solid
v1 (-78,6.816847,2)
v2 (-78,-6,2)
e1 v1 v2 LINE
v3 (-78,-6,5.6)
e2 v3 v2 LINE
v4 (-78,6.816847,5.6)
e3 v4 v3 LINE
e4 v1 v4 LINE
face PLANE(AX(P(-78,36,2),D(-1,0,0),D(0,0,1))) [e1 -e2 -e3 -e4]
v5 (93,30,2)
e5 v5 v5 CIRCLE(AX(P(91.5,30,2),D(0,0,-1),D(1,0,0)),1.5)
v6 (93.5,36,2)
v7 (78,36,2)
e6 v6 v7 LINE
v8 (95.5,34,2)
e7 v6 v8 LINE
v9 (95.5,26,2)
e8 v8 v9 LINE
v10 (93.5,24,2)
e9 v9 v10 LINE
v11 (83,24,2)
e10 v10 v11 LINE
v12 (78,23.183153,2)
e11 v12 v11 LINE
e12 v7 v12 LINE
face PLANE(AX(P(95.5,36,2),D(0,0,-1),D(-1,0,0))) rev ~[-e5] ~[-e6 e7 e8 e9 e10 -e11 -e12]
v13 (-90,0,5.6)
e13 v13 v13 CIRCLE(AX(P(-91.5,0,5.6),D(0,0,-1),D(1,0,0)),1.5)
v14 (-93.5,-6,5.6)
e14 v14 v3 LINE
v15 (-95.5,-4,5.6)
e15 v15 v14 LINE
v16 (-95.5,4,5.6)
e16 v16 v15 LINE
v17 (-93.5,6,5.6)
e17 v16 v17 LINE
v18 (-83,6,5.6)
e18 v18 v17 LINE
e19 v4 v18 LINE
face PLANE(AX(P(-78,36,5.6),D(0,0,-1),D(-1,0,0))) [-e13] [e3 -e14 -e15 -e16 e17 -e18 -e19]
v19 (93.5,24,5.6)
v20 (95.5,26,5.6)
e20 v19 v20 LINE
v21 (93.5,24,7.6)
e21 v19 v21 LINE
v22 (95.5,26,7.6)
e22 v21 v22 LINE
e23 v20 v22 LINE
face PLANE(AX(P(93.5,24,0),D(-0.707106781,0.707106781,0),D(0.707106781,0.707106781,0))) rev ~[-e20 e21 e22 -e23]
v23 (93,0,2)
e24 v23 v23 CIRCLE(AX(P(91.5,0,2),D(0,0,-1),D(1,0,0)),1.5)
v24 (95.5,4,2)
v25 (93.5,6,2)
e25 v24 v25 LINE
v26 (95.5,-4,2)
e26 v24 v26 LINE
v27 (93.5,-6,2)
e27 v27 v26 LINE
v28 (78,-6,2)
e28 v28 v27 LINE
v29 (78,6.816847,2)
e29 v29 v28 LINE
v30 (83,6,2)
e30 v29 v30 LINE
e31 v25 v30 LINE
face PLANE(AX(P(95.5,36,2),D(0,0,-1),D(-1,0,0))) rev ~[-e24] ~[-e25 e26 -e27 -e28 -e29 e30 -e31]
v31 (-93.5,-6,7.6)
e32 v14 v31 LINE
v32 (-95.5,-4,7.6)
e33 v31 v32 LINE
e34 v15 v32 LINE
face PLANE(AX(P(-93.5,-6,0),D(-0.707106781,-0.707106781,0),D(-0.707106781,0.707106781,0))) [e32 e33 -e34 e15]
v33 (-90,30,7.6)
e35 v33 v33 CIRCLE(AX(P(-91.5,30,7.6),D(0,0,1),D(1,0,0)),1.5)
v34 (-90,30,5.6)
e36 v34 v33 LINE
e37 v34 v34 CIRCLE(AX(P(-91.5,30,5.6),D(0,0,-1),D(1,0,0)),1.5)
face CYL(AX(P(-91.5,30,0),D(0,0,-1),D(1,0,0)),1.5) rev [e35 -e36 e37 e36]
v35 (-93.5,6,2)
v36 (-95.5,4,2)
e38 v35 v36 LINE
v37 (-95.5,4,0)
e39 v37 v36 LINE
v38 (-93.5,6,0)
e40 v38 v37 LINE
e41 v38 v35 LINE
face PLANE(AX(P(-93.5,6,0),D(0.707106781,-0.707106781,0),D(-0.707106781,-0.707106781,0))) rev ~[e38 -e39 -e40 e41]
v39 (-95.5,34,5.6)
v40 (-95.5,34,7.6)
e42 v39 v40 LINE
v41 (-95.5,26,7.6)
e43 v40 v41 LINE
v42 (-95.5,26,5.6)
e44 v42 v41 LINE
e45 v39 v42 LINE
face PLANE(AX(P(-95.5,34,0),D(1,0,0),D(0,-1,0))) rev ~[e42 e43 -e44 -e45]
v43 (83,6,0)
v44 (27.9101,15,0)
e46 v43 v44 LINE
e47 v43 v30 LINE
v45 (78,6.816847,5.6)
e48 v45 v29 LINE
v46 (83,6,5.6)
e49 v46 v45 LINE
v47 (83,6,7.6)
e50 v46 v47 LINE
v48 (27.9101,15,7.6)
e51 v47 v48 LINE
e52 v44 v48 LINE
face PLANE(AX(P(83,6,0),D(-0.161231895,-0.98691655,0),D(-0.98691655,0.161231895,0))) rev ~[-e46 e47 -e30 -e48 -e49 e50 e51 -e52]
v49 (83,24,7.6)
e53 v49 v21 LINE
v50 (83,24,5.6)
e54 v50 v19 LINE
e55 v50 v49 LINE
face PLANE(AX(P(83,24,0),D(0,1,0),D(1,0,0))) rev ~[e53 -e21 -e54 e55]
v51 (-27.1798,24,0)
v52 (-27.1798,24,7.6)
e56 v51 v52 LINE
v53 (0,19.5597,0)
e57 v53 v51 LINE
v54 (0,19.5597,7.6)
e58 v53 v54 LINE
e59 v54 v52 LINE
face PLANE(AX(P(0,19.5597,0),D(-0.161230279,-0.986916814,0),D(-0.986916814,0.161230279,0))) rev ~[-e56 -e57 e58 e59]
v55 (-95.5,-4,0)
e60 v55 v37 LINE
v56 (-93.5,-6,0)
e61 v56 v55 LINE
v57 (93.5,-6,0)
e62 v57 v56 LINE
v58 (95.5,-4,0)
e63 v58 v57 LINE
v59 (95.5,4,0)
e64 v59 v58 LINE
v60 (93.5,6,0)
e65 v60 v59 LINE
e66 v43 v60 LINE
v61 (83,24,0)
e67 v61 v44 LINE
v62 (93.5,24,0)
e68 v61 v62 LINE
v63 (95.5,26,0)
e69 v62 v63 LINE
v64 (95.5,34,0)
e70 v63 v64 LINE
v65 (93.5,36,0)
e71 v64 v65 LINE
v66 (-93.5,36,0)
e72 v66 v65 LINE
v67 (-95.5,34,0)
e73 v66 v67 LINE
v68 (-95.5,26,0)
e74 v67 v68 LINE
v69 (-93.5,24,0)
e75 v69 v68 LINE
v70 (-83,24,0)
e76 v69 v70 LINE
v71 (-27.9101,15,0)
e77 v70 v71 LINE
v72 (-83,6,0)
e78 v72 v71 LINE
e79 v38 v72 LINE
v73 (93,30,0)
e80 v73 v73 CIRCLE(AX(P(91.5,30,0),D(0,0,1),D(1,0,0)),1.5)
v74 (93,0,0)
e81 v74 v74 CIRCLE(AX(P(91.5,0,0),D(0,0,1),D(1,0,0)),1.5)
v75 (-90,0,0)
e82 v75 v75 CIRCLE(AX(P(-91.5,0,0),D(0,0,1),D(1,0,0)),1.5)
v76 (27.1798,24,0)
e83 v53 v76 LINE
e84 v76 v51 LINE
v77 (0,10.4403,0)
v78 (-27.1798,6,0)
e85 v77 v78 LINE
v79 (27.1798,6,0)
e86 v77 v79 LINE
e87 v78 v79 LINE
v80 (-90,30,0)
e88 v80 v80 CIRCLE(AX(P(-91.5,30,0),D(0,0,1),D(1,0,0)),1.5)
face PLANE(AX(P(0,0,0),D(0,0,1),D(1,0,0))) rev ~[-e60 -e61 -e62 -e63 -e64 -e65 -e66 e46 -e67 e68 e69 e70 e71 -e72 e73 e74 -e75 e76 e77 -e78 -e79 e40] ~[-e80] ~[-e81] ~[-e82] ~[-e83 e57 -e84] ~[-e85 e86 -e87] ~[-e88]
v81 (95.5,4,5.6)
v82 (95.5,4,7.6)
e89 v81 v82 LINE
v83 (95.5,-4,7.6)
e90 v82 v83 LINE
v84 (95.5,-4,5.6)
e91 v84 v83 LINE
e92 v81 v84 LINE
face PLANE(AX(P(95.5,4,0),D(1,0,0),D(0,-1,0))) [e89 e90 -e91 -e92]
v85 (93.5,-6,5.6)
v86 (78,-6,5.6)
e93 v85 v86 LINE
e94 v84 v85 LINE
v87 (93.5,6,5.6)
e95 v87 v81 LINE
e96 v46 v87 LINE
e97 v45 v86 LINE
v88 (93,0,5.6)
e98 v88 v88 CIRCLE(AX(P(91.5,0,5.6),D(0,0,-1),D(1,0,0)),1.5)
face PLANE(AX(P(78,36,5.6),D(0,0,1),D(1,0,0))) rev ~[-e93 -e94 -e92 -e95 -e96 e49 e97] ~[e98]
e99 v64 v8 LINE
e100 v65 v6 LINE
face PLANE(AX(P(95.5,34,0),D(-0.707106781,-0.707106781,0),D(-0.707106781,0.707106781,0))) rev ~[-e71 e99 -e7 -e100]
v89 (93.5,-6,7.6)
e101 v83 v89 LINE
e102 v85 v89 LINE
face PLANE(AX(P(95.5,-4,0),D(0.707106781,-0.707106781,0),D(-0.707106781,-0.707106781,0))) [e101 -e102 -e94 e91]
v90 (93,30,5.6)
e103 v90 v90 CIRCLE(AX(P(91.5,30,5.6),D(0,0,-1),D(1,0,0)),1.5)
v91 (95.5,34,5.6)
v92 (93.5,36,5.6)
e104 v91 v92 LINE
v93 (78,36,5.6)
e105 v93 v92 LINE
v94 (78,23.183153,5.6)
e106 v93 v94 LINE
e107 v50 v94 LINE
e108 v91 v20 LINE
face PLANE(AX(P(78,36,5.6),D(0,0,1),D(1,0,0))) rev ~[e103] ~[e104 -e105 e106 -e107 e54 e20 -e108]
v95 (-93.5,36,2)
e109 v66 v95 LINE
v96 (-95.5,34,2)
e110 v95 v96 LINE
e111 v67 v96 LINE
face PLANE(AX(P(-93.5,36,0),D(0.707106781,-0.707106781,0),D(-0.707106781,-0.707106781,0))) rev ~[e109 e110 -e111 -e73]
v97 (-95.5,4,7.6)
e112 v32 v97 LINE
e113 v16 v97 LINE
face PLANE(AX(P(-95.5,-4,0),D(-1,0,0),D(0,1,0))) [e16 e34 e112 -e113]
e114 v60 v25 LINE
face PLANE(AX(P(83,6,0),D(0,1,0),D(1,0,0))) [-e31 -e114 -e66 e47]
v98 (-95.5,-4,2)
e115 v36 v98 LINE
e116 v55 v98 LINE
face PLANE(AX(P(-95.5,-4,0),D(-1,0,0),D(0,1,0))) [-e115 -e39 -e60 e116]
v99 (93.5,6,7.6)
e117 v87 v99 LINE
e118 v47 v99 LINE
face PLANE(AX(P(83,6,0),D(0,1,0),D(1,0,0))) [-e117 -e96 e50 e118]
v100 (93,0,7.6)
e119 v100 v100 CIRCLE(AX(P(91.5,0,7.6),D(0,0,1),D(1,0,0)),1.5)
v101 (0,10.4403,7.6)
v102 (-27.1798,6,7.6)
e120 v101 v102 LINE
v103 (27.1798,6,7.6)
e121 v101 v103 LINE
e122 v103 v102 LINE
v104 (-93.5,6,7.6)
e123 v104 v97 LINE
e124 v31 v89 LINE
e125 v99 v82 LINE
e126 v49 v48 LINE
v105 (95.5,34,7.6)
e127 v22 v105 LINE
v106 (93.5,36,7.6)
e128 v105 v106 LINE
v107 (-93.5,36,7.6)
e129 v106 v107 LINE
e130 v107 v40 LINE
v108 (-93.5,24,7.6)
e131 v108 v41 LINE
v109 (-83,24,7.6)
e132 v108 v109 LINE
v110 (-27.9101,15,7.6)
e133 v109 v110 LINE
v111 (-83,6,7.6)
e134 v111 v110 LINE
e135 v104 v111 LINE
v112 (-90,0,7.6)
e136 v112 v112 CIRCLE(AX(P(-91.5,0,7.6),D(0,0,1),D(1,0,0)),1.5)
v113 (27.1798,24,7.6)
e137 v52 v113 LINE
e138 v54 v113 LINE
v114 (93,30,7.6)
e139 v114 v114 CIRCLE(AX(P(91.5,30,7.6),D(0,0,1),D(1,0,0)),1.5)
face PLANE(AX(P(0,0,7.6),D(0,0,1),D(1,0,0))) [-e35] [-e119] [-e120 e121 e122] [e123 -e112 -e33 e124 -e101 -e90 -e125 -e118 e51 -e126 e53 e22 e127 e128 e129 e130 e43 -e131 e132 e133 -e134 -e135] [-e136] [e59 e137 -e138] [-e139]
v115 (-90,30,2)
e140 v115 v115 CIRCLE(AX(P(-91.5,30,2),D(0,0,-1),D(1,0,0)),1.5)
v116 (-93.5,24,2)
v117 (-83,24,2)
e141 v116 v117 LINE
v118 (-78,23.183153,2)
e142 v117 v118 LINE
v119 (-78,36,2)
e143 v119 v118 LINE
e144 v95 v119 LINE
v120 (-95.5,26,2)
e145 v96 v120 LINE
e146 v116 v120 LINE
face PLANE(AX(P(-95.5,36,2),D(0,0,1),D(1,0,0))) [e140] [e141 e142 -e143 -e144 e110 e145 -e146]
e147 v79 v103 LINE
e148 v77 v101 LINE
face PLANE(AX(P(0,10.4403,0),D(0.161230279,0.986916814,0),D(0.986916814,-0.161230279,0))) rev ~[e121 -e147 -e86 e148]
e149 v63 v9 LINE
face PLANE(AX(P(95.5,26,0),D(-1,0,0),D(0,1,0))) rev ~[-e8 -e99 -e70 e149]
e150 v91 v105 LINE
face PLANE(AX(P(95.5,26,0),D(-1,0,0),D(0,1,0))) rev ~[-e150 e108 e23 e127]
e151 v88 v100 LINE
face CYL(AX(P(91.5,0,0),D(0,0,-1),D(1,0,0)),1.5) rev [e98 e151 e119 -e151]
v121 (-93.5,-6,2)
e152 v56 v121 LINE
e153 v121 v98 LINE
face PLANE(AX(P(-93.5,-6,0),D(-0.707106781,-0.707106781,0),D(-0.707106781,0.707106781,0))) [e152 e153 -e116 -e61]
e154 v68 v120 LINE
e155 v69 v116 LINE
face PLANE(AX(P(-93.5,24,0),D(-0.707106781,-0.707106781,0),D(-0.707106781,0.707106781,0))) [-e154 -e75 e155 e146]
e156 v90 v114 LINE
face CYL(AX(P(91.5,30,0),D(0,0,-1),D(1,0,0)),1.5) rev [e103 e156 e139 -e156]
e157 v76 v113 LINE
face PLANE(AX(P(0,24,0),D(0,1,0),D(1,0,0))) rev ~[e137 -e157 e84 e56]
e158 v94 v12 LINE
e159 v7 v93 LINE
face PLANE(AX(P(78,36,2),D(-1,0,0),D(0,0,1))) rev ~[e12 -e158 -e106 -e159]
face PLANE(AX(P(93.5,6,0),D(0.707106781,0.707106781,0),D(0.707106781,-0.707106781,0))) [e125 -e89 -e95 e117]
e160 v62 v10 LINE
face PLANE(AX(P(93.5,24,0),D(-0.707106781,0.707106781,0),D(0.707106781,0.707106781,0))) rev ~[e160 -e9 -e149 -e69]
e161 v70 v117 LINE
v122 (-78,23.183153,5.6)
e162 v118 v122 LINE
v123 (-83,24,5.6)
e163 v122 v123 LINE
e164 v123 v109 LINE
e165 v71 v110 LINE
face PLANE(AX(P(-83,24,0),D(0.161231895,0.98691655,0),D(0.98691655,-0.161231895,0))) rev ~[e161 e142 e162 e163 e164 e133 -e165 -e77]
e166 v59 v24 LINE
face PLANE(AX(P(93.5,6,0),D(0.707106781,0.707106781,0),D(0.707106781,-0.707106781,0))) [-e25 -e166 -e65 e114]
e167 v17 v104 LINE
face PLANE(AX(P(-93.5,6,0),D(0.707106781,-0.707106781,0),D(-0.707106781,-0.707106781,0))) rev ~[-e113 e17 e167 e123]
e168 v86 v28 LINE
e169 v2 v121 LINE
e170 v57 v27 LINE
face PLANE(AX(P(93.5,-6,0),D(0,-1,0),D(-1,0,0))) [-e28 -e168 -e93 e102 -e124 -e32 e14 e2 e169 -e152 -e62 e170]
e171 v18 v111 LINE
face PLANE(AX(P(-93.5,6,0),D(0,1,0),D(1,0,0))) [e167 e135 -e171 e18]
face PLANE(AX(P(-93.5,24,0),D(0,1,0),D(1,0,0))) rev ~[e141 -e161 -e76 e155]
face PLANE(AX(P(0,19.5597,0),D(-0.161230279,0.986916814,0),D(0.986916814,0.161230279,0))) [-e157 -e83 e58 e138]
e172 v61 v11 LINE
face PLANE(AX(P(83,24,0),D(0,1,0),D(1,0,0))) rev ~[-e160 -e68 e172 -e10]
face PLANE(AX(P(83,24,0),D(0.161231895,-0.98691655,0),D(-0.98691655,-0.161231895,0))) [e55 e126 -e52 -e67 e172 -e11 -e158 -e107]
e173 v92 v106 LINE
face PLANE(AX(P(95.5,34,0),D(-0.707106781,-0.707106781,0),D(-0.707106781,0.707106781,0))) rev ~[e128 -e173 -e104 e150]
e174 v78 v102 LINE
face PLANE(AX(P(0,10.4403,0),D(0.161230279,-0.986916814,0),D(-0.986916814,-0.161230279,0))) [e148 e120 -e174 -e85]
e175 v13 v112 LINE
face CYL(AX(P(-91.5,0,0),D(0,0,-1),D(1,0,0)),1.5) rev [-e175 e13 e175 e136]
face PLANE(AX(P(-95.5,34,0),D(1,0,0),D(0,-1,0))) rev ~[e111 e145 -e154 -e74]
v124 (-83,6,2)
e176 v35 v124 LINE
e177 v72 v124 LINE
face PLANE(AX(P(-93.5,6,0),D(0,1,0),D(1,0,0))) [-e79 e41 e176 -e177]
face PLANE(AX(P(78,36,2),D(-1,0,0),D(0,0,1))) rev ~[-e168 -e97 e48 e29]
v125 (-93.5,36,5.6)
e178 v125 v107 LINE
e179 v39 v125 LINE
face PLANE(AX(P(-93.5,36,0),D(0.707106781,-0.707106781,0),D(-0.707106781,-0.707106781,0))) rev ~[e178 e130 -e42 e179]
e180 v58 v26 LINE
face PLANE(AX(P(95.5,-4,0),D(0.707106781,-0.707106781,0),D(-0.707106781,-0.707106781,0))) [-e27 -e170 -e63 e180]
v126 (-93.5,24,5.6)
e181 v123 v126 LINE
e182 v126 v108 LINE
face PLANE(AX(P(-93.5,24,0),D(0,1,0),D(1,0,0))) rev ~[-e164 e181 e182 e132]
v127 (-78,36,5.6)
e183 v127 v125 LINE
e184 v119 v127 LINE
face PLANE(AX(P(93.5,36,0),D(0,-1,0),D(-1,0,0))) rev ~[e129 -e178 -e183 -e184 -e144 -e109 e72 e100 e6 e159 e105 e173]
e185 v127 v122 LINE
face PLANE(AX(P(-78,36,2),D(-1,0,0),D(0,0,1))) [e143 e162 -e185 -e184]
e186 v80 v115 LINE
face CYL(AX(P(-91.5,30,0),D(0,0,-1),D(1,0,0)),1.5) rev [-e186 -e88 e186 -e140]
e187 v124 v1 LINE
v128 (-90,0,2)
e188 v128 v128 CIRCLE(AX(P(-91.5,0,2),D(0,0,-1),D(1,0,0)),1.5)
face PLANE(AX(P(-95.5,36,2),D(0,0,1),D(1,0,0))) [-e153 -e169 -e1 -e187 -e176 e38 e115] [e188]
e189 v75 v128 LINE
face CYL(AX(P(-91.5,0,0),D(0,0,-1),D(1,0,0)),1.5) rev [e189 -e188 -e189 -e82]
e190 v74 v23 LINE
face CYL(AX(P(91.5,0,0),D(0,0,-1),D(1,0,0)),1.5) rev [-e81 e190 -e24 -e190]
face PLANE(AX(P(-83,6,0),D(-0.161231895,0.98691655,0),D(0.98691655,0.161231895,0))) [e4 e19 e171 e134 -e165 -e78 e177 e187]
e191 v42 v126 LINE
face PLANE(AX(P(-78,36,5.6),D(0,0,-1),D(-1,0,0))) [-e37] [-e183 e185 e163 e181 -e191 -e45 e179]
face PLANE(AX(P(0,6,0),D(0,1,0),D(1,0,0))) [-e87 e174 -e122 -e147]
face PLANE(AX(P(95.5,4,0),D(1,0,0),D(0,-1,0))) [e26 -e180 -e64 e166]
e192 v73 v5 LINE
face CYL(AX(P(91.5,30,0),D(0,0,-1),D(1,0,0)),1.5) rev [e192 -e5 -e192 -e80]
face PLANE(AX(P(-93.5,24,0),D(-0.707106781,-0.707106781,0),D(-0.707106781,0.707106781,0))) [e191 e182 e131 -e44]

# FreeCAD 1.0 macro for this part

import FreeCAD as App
import Part
import Sketcher
Q = App.Units.Quantity


def add_polygon(sketch, points):
    """Adds a closed chain of lines whose ends are joined by coincident constraints."""
    first, n = sketch.GeometryCount, len(points)
    for a, b in zip(points, points[1:] + points[:1]):
        sketch.addGeometry(Part.LineSegment(App.Vector(*a, 0), App.Vector(*b, 0)), False)
    for i in range(n):
        sketch.addConstraint(Sketcher.Constraint("Coincident", first + i, 2, first + (i + 1) % n, 1))

doc = App.newDocument("Part")
body = doc.addObject("PartDesign::Body", "Body")

sketch1 = body.newObject("Sketcher::SketchObject", "Sketch")
sketch1.AttachmentSupport = (doc.getObject("XY_Plane"), [""])
sketch1.MapMode = "FlatFace"
add_polygon(sketch1, [(95.5, -4), (95.5, 4), (93.5, 6), (83, 6), (27.9, 15), (83, 24), (93.5, 24), (95.5, 26), (95.5, 34), (93.5, 36), (-93.5, 36), (-95.5, 34), (-95.5, 26), (-93.5, 24), (-83, 24), (-27.9, 15), (-83, 6), (-93.5, 6), (-95.5, 4), (-95.5, -4), (-93.5, -6), (93.5, -6)])
add_polygon(sketch1, [(27.2, 6), (-27.2, 6), (0, 10.4)])
add_polygon(sketch1, [(27.2, 24), (0, 19.6), (-27.2, 24)])
sketch1.addGeometry(Part.Circle(App.Vector(91.5, 0, 0), App.Vector(0, 0, 1), 1.5), False)
sketch1.addGeometry(Part.Circle(App.Vector(91.5, 30, 0), App.Vector(0, 0, 1), 1.5), False)
sketch1.addGeometry(Part.Circle(App.Vector(-91.5, 30, 0), App.Vector(0, 0, 1), 1.5), False)
sketch1.addGeometry(Part.Circle(App.Vector(-91.5, 0, 0), App.Vector(0, 0, 1), 1.5), False)
sketch1.addConstraint([
    Sketcher.Constraint("Vertical", 0),
    Sketcher.Constraint("Horizontal", 2),
    Sketcher.Constraint("Horizontal", 5),
    Sketcher.Constraint("Vertical", 7),
    Sketcher.Constraint("Horizontal", 9),
    Sketcher.Constraint("Vertical", 11),
    Sketcher.Constraint("Horizontal", 13),
    Sketcher.Constraint("Horizontal", 16),
    Sketcher.Constraint("Vertical", 18),
    Sketcher.Constraint("Horizontal", 20),
    Sketcher.Constraint("Horizontal", 22),
    Sketcher.Constraint("Horizontal", 27),
    Sketcher.Constraint("Equal", 28, 29),
    Sketcher.Constraint("Equal", 29, 30),
    Sketcher.Constraint("Equal", 30, 31),
    Sketcher.Constraint("Symmetric", 28, 3, 31, 3, -1, 1),
    Sketcher.Constraint("Symmetric", 0, 2, 18, 2, -1, 1),
    Sketcher.Constraint("Symmetric", 1, 2, 19, 2, -1, 1),
    Sketcher.Constraint("Symmetric", 16, 2, 20, 2, -1, 1),
    Sketcher.Constraint("Symmetric", 29, 3, 30, 3, -2),
    Sketcher.Constraint("Symmetric", 7, 2, 10, 2, -2),
    Sketcher.Constraint("Symmetric", 5, 2, 12, 2, -2),
    Sketcher.Constraint("Symmetric", 3, 2, 14, 2, -2),
    Sketcher.Constraint("PointOnObject", 28, 3, -1),
    Sketcher.Constraint("PointOnObject", 23, 2, -2),
    Sketcher.Constraint("PointOnObject", 25, 2, -2),
    Sketcher.Constraint("Perpendicular", 1, 6),
    Sketcher.Constraint("Perpendicular", 6, 8),
    Sketcher.Constraint("Perpendicular", 8, 10),
    Sketcher.Constraint("Perpendicular", 10, 12),
    Sketcher.Constraint("Parallel", 3, 14),
    Sketcher.Constraint("Parallel", 4, 15),
    Sketcher.Constraint("Perpendicular", 12, 17),
    Sketcher.Constraint("Perpendicular", 19, 21),
    Sketcher.Constraint("Parallel", 15, 23),
    Sketcher.Constraint("Parallel", 14, 24),
    Sketcher.Constraint("Parallel", 23, 25),
    Sketcher.Constraint("Parallel", 24, 26),
    Sketcher.Constraint("Horizontal", 6, 2, 11, 2),
    Sketcher.Constraint("Horizontal", 0, 2, 17, 2),
    Sketcher.Constraint("Horizontal", 16, 2, 22, 2),
    Sketcher.Constraint("Horizontal", 13, 2, 26, 2),
    Sketcher.Constraint("Vertical", 28, 3, 29, 3),
    Sketcher.Constraint("Vertical", 2, 2, 4, 2),
    Sketcher.Constraint("Vertical", 1, 2, 5, 2),
    Sketcher.Constraint("Vertical", 0, 2, 6, 2),
    Sketcher.Constraint("Vertical", 5, 2, 8, 2),
    Sketcher.Constraint("Vertical", 13, 2, 15, 2),
    Sketcher.Constraint("Vertical", 22, 2, 26, 2),
    Sketcher.Constraint("Equal", 0, 7),
    Sketcher.Constraint("Diameter", 28, Q("3 mm")),
    Sketcher.Constraint("DistanceX", 2, 2, 2, 1, Q("10.5 mm")),
    Sketcher.Constraint("DistanceY", -1, 1, 29, 3, Q("30 mm")),
    Sketcher.Constraint("DistanceY", -1, 1, 0, 2, Q("4 mm")),
    Sketcher.Constraint("DistanceX", 30, 3, 29, 3, Q("183 mm")),
    Sketcher.Constraint("DistanceX", 28, 3, 0, 2, Q("4 mm")),
    Sketcher.Constraint("DistanceX", 1, 2, 0, 2, Q("2 mm")),
    Sketcher.Constraint("DistanceY", 2, 2, 3, 2, Q("9 mm")),
    Sketcher.Constraint("Distance", 23, Q("27.54 mm")),
    Sketcher.Constraint("DistanceX", -1, 1, 3, 2, Q("27.91 mm")),
])
pad1 = body.newObject("PartDesign::Pad", "Pad")
pad1.Profile = sketch1
pad1.Length = 7.6

sketch2 = body.newObject("Sketcher::SketchObject", "Sketch001")
sketch2.AttachmentSupport = (doc.getObject("XZ_Plane"), [""])
sketch2.MapMode = "FlatFace"
sketch2.AttachmentOffset = App.Placement(App.Vector(0, 0, -36), App.Rotation())
add_polygon(sketch2, [(-78, 2), (-95.5, 2), (-95.5, 5.6), (-78, 5.6)])
add_polygon(sketch2, [(95.5, 5.6), (95.5, 2), (78, 2), (78, 5.6)])
sketch2.addConstraint([
    Sketcher.Constraint("Horizontal", 0),
    Sketcher.Constraint("Vertical", 1),
    Sketcher.Constraint("Horizontal", 2),
    Sketcher.Constraint("Vertical", 3),
    Sketcher.Constraint("Vertical", 4),
    Sketcher.Constraint("Horizontal", 5),
    Sketcher.Constraint("Vertical", 6),
    Sketcher.Constraint("Horizontal", 7),
    Sketcher.Constraint("Symmetric", 0, 2, 4, 2, -2),
    Sketcher.Constraint("Symmetric", 2, 2, 6, 2, -2),
    Sketcher.Constraint("DistanceX", 0, 2, 0, 1, Q("17.5 mm")),
    Sketcher.Constraint("DistanceY", 1, 1, 1, 2, Q("3.6 mm")),
    Sketcher.Constraint("DistanceY", -1, 1, 0, 2, Q("2 mm")),
    Sketcher.Constraint("DistanceX", 2, 2, -1, 1, Q("78 mm")),
])
pocket1 = body.newObject("PartDesign::Pocket", "Pocket")
pocket1.Profile = sketch2
pocket1.Type = "ThroughAll"
pocket1.Reversed = True

doc.recompute()
